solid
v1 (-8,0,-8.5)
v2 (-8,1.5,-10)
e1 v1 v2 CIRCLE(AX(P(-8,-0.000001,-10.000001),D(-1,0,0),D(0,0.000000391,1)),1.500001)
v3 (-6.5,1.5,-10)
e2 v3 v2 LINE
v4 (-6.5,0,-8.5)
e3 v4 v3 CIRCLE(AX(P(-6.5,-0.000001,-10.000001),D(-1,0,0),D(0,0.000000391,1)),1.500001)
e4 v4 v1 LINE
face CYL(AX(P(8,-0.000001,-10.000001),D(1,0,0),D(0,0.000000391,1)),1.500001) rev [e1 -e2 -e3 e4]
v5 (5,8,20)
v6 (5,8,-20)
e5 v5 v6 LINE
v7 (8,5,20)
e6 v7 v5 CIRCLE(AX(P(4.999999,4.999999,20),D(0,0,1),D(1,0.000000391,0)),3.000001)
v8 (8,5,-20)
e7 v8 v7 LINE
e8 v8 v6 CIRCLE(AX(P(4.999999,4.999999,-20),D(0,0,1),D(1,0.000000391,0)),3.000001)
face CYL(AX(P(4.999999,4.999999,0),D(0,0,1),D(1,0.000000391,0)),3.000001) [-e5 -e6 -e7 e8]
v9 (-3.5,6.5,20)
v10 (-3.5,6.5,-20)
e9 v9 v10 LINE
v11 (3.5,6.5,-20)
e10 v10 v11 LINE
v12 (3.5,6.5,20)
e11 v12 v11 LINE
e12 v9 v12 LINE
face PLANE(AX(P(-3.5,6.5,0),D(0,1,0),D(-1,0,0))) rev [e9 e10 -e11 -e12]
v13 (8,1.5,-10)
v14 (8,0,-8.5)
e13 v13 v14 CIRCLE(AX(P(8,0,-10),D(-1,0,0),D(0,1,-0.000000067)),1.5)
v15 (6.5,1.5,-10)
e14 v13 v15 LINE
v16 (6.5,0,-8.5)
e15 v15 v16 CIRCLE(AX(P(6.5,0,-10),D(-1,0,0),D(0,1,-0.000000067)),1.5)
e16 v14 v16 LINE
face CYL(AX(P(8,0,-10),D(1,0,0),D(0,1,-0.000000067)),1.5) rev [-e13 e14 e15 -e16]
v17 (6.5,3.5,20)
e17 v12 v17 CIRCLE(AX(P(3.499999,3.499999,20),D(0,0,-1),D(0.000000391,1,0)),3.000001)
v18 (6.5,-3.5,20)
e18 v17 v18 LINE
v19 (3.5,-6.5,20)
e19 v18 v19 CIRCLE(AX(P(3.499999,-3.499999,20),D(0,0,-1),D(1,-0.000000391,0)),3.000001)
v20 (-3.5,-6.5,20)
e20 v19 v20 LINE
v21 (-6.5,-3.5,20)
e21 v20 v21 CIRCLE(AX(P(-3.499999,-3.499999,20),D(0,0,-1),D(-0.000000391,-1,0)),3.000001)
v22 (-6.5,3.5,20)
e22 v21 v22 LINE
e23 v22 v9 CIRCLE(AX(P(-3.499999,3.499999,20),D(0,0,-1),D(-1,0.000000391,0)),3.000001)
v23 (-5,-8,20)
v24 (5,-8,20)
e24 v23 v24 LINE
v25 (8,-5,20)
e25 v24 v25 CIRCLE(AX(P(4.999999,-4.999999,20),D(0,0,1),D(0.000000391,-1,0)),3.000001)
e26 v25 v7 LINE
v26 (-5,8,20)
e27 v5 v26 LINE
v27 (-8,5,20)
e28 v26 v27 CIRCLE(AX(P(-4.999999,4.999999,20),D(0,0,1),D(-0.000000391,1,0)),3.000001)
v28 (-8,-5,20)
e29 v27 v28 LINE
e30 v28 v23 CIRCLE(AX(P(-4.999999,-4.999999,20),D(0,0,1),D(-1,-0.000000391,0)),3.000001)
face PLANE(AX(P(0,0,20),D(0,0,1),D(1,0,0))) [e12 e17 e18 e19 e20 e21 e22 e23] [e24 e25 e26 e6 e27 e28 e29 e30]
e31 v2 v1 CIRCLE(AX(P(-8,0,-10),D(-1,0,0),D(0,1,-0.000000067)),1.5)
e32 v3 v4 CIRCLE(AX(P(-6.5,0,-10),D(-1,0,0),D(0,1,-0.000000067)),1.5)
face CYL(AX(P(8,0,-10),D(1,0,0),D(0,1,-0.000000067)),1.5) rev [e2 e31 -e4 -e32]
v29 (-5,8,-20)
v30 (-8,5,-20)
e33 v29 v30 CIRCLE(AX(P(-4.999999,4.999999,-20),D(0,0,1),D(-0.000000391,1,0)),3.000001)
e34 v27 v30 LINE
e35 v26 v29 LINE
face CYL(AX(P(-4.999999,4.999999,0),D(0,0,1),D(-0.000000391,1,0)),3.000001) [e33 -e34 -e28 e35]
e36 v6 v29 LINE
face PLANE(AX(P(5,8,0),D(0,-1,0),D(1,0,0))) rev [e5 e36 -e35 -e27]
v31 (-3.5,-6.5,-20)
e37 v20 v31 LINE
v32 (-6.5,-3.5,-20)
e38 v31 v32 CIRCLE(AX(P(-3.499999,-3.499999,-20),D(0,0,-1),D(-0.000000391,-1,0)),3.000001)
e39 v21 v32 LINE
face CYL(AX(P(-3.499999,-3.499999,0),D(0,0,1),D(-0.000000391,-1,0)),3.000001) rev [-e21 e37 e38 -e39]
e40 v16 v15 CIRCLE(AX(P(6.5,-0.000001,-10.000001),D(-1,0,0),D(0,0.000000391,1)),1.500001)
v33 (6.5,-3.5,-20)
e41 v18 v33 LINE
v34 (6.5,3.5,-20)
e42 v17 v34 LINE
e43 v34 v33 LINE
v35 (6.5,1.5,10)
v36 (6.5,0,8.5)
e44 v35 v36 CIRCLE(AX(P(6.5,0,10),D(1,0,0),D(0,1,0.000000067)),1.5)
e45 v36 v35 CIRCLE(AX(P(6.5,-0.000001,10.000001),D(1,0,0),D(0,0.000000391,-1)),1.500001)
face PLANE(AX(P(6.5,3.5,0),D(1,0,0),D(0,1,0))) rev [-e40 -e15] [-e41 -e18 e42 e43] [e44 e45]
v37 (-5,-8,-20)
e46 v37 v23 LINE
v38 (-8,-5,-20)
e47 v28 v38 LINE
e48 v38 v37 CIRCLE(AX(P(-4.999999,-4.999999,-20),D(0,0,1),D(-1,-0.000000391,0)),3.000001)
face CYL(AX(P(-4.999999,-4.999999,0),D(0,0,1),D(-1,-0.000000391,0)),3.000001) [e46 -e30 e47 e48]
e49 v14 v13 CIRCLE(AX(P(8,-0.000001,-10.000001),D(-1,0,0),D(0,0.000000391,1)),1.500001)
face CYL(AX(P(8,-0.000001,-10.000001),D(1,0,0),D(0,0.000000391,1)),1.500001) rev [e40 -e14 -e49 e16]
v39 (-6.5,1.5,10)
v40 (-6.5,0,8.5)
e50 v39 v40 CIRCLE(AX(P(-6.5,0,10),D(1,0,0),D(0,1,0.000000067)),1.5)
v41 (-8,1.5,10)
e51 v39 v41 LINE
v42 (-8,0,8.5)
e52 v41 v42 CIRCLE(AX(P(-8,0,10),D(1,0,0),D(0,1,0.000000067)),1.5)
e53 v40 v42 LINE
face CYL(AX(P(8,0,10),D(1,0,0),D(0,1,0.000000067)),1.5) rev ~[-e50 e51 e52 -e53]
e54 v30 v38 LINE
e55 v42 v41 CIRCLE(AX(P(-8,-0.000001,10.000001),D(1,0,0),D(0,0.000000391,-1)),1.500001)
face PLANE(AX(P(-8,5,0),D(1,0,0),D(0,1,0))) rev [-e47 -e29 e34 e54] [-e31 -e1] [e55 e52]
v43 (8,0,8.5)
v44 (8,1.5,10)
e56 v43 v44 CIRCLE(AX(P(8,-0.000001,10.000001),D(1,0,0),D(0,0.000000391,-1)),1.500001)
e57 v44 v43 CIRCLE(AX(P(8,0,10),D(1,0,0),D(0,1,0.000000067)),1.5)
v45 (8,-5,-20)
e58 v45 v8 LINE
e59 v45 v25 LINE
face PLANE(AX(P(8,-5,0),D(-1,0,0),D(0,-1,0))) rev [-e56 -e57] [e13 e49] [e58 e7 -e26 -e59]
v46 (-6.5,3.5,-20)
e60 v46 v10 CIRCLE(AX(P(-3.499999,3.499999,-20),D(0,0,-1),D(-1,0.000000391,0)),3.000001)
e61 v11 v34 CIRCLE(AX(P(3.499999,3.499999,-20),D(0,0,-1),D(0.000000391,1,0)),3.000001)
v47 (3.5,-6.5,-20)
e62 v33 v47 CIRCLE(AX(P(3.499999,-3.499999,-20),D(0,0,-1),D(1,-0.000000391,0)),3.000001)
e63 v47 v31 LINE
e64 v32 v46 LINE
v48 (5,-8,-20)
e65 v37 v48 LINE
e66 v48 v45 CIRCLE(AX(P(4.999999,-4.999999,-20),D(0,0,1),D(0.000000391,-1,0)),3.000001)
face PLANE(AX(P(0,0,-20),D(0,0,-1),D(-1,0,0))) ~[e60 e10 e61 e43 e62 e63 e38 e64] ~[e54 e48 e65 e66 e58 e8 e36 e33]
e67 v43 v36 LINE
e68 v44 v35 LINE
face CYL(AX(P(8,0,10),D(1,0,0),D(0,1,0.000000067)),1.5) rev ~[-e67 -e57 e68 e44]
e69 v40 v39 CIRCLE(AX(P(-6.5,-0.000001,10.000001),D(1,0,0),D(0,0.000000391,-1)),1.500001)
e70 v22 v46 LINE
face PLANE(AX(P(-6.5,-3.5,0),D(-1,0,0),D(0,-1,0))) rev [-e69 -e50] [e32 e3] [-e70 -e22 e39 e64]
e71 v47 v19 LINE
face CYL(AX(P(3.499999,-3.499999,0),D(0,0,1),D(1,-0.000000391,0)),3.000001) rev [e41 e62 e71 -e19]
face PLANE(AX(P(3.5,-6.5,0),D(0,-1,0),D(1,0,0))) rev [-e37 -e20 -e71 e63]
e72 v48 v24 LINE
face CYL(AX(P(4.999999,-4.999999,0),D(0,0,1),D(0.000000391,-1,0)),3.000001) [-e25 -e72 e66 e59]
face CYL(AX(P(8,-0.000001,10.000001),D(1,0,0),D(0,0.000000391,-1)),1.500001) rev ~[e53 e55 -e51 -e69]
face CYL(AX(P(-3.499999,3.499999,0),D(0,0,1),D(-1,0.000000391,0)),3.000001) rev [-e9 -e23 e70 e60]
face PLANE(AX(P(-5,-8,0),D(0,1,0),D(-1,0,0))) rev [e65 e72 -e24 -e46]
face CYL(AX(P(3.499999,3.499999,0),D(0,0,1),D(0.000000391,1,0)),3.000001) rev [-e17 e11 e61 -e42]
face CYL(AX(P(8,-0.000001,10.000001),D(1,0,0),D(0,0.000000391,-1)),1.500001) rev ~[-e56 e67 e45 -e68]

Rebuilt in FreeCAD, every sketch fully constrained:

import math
import FreeCAD as App
import Part
import Sketcher
from FreeCAD import Vector
Q = App.Units.Quantity

doc = App.newDocument("Part")
body = doc.addObject("PartDesign::Body", "Body")

# Sketch on XY plane
sketch1 = body.newObject("Sketcher::SketchObject", "Sketch")
sketch1.AttachmentSupport = (doc.getObject("XY_Plane"), [""])
sketch1.MapMode = "FlatFace"
sketch1.addGeometry([
    Part.ArcOfCircle(Part.Circle(Vector(-4.999999, -4.999999, 0), Vector(0, 0, 1), 3.000001), math.radians(-179.999978), math.radians(-90.000022)),  # 0
    Part.LineSegment(Vector(-5, -8, 0), Vector(5, -8, 0)),  # 1
    Part.ArcOfCircle(Part.Circle(Vector(4.999999, -4.999999, 0), Vector(0, 0, 1), 3.000001), math.radians(-89.999978), math.radians(-0.000022)),  # 2
    Part.LineSegment(Vector(8, -5, 0), Vector(8, 5, 0)),  # 3
    Part.ArcOfCircle(Part.Circle(Vector(4.999999, 4.999999, 0), Vector(0, 0, 1), 3.000001), math.radians(0.000022), math.radians(89.999978)),  # 4
    Part.LineSegment(Vector(5, 8, 0), Vector(-5, 8, 0)),  # 5
    Part.ArcOfCircle(Part.Circle(Vector(-4.999999, 4.999999, 0), Vector(0, 0, 1), 3.000001), math.radians(90.000022), math.radians(179.999978)),  # 6
    Part.LineSegment(Vector(-8, 5, 0), Vector(-8, -5, 0)),  # 7
    Part.ArcOfCircle(Part.Circle(Vector(3.499999, -3.499999, 0), Vector(0, 0, 1), 3.000001), math.radians(-89.999978), math.radians(-0.000022)),  # 8
    Part.LineSegment(Vector(3.5, -6.5, 0), Vector(-3.5, -6.5, 0)),  # 9
    Part.ArcOfCircle(Part.Circle(Vector(-3.499999, -3.499999, 0), Vector(0, 0, 1), 3.000001), math.radians(-179.999978), math.radians(-90.000022)),  # 10
    Part.LineSegment(Vector(-6.5, -3.5, 0), Vector(-6.5, 3.5, 0)),  # 11
    Part.ArcOfCircle(Part.Circle(Vector(-3.499999, 3.499999, 0), Vector(0, 0, 1), 3.000001), math.radians(90.000022), math.radians(179.999978)),  # 12
    Part.LineSegment(Vector(-3.5, 6.5, 0), Vector(3.5, 6.5, 0)),  # 13
    Part.ArcOfCircle(Part.Circle(Vector(3.499999, 3.499999, 0), Vector(0, 0, 1), 3.000001), math.radians(0.000022), math.radians(89.999978)),  # 14
    Part.LineSegment(Vector(6.5, 3.5, 0), Vector(6.5, -3.5, 0)),  # 15
], False)
sketch1.addConstraint([
    Sketcher.Constraint("Tangent", 0, 2, 1, 1),
    Sketcher.Constraint("Tangent", 1, 2, 2, 1),
    Sketcher.Constraint("Tangent", 2, 2, 3, 1),
    Sketcher.Constraint("Tangent", 3, 2, 4, 1),
    Sketcher.Constraint("Tangent", 4, 2, 5, 1),
    Sketcher.Constraint("Tangent", 5, 2, 6, 1),
    Sketcher.Constraint("Tangent", 6, 2, 7, 1),
    Sketcher.Constraint("Tangent", 7, 2, 0, 1),
    Sketcher.Constraint("Tangent", 8, 1, 9, 1),
    Sketcher.Constraint("Tangent", 9, 2, 10, 2),
    Sketcher.Constraint("Tangent", 10, 1, 11, 1),
    Sketcher.Constraint("Tangent", 11, 2, 12, 2),
    Sketcher.Constraint("Tangent", 12, 1, 13, 1),
    Sketcher.Constraint("Tangent", 13, 2, 14, 2),
    Sketcher.Constraint("Tangent", 14, 1, 15, 1),
    Sketcher.Constraint("Tangent", 15, 2, 8, 2),
    Sketcher.Constraint("Horizontal", 1),
    Sketcher.Constraint("Vertical", 3),
    Sketcher.Constraint("Horizontal", 5),
    Sketcher.Constraint("Vertical", 7),
    Sketcher.Constraint("Horizontal", 9),
    Sketcher.Constraint("Vertical", 11),
    Sketcher.Constraint("Horizontal", 13),
    Sketcher.Constraint("Vertical", 15),
    Sketcher.Constraint("Equal", 0, 2),
    Sketcher.Constraint("Equal", 2, 4),
    Sketcher.Constraint("Equal", 4, 6),
    Sketcher.Constraint("Equal", 6, 8),
    Sketcher.Constraint("Equal", 8, 10),
    Sketcher.Constraint("Equal", 10, 12),
    Sketcher.Constraint("Equal", 12, 14),
    Sketcher.Constraint("Symmetric", 0, 3, 4, 3, -1, 1),
    Sketcher.Constraint("Symmetric", 8, 3, 12, 3, -1, 1),
    Sketcher.Constraint("Equal", 5, 3),
    Sketcher.Constraint("Equal", 13, 11),
    Sketcher.Constraint("Radius", 0, Q("3.000001 mm")),
    Sketcher.Constraint("DistanceX", 1, 1, 1, 2, Q("10 mm")),
    Sketcher.Constraint("DistanceX", 9, 2, 9, 1, Q("7 mm")),
])
pad1 = body.newObject("PartDesign::Pad", "Pad")
pad1.Profile = sketch1
pad1.Length = 20

# Sketch on YZ plane
sketch2 = body.newObject("Sketcher::SketchObject", "Sketch001")
sketch2.AttachmentSupport = (doc.getObject("YZ_Plane"), [""])
sketch2.MapMode = "FlatFace"
sketch2.AttachmentOffset = App.Placement(Vector(0, 0, 8), App.Rotation())
sketch2.addGeometry([
    Part.ArcOfCircle(Part.Circle(Vector(0, 10, 0), Vector(0, 0, 1), 1.5), math.radians(0.000004), math.radians(269.999996)),
    Part.ArcOfCircle(Part.Circle(Vector(-0.000001, 10.000001, 0), Vector(0, 0, 1), 1.500001), math.radians(-89.999978), math.radians(-0.000022)),
], False)
sketch2.addConstraint([
    Sketcher.Constraint("Tangent", 0, 1, 1, 2),
    Sketcher.Constraint("Coincident", 1, 1, 0, 2),
    Sketcher.Constraint("PointOnObject", 0, 3, -2),
    Sketcher.Constraint("PointOnObject", 1, 1, -2),
    Sketcher.Constraint("Horizontal", 1, 3, 0, 1),
    Sketcher.Constraint("Radius", 0, Q("1.5 mm")),
    Sketcher.Constraint("DistanceY", -1, 1, 0, 3, Q("10 mm")),
])
pocket1 = body.newObject("PartDesign::Pocket", "Pocket")
pocket1.Profile = sketch2
pocket1.Length = 25
body2 = doc.addObject("PartDesign::Body", "Body001")
doc.recompute()

body2.BaseFeature = body
doc.recompute()

mirroring = doc.addObject("Part::Mirroring", "Mirroring")
mirroring.Source = body
mirroring.Base = Vector(0, 0, 0)
mirroring.Normal = Vector(0, 0, 1)
body3 = doc.addObject("PartDesign::Body", "Body002")
body3.BaseFeature = mirroring
boolean = body2.newObject("PartDesign::Boolean", "Boolean")
boolean.Type = "Fuse"
boolean.addObjects([body3])
doc.recompute()
mirroring.Visibility = False

doc.recompute()
